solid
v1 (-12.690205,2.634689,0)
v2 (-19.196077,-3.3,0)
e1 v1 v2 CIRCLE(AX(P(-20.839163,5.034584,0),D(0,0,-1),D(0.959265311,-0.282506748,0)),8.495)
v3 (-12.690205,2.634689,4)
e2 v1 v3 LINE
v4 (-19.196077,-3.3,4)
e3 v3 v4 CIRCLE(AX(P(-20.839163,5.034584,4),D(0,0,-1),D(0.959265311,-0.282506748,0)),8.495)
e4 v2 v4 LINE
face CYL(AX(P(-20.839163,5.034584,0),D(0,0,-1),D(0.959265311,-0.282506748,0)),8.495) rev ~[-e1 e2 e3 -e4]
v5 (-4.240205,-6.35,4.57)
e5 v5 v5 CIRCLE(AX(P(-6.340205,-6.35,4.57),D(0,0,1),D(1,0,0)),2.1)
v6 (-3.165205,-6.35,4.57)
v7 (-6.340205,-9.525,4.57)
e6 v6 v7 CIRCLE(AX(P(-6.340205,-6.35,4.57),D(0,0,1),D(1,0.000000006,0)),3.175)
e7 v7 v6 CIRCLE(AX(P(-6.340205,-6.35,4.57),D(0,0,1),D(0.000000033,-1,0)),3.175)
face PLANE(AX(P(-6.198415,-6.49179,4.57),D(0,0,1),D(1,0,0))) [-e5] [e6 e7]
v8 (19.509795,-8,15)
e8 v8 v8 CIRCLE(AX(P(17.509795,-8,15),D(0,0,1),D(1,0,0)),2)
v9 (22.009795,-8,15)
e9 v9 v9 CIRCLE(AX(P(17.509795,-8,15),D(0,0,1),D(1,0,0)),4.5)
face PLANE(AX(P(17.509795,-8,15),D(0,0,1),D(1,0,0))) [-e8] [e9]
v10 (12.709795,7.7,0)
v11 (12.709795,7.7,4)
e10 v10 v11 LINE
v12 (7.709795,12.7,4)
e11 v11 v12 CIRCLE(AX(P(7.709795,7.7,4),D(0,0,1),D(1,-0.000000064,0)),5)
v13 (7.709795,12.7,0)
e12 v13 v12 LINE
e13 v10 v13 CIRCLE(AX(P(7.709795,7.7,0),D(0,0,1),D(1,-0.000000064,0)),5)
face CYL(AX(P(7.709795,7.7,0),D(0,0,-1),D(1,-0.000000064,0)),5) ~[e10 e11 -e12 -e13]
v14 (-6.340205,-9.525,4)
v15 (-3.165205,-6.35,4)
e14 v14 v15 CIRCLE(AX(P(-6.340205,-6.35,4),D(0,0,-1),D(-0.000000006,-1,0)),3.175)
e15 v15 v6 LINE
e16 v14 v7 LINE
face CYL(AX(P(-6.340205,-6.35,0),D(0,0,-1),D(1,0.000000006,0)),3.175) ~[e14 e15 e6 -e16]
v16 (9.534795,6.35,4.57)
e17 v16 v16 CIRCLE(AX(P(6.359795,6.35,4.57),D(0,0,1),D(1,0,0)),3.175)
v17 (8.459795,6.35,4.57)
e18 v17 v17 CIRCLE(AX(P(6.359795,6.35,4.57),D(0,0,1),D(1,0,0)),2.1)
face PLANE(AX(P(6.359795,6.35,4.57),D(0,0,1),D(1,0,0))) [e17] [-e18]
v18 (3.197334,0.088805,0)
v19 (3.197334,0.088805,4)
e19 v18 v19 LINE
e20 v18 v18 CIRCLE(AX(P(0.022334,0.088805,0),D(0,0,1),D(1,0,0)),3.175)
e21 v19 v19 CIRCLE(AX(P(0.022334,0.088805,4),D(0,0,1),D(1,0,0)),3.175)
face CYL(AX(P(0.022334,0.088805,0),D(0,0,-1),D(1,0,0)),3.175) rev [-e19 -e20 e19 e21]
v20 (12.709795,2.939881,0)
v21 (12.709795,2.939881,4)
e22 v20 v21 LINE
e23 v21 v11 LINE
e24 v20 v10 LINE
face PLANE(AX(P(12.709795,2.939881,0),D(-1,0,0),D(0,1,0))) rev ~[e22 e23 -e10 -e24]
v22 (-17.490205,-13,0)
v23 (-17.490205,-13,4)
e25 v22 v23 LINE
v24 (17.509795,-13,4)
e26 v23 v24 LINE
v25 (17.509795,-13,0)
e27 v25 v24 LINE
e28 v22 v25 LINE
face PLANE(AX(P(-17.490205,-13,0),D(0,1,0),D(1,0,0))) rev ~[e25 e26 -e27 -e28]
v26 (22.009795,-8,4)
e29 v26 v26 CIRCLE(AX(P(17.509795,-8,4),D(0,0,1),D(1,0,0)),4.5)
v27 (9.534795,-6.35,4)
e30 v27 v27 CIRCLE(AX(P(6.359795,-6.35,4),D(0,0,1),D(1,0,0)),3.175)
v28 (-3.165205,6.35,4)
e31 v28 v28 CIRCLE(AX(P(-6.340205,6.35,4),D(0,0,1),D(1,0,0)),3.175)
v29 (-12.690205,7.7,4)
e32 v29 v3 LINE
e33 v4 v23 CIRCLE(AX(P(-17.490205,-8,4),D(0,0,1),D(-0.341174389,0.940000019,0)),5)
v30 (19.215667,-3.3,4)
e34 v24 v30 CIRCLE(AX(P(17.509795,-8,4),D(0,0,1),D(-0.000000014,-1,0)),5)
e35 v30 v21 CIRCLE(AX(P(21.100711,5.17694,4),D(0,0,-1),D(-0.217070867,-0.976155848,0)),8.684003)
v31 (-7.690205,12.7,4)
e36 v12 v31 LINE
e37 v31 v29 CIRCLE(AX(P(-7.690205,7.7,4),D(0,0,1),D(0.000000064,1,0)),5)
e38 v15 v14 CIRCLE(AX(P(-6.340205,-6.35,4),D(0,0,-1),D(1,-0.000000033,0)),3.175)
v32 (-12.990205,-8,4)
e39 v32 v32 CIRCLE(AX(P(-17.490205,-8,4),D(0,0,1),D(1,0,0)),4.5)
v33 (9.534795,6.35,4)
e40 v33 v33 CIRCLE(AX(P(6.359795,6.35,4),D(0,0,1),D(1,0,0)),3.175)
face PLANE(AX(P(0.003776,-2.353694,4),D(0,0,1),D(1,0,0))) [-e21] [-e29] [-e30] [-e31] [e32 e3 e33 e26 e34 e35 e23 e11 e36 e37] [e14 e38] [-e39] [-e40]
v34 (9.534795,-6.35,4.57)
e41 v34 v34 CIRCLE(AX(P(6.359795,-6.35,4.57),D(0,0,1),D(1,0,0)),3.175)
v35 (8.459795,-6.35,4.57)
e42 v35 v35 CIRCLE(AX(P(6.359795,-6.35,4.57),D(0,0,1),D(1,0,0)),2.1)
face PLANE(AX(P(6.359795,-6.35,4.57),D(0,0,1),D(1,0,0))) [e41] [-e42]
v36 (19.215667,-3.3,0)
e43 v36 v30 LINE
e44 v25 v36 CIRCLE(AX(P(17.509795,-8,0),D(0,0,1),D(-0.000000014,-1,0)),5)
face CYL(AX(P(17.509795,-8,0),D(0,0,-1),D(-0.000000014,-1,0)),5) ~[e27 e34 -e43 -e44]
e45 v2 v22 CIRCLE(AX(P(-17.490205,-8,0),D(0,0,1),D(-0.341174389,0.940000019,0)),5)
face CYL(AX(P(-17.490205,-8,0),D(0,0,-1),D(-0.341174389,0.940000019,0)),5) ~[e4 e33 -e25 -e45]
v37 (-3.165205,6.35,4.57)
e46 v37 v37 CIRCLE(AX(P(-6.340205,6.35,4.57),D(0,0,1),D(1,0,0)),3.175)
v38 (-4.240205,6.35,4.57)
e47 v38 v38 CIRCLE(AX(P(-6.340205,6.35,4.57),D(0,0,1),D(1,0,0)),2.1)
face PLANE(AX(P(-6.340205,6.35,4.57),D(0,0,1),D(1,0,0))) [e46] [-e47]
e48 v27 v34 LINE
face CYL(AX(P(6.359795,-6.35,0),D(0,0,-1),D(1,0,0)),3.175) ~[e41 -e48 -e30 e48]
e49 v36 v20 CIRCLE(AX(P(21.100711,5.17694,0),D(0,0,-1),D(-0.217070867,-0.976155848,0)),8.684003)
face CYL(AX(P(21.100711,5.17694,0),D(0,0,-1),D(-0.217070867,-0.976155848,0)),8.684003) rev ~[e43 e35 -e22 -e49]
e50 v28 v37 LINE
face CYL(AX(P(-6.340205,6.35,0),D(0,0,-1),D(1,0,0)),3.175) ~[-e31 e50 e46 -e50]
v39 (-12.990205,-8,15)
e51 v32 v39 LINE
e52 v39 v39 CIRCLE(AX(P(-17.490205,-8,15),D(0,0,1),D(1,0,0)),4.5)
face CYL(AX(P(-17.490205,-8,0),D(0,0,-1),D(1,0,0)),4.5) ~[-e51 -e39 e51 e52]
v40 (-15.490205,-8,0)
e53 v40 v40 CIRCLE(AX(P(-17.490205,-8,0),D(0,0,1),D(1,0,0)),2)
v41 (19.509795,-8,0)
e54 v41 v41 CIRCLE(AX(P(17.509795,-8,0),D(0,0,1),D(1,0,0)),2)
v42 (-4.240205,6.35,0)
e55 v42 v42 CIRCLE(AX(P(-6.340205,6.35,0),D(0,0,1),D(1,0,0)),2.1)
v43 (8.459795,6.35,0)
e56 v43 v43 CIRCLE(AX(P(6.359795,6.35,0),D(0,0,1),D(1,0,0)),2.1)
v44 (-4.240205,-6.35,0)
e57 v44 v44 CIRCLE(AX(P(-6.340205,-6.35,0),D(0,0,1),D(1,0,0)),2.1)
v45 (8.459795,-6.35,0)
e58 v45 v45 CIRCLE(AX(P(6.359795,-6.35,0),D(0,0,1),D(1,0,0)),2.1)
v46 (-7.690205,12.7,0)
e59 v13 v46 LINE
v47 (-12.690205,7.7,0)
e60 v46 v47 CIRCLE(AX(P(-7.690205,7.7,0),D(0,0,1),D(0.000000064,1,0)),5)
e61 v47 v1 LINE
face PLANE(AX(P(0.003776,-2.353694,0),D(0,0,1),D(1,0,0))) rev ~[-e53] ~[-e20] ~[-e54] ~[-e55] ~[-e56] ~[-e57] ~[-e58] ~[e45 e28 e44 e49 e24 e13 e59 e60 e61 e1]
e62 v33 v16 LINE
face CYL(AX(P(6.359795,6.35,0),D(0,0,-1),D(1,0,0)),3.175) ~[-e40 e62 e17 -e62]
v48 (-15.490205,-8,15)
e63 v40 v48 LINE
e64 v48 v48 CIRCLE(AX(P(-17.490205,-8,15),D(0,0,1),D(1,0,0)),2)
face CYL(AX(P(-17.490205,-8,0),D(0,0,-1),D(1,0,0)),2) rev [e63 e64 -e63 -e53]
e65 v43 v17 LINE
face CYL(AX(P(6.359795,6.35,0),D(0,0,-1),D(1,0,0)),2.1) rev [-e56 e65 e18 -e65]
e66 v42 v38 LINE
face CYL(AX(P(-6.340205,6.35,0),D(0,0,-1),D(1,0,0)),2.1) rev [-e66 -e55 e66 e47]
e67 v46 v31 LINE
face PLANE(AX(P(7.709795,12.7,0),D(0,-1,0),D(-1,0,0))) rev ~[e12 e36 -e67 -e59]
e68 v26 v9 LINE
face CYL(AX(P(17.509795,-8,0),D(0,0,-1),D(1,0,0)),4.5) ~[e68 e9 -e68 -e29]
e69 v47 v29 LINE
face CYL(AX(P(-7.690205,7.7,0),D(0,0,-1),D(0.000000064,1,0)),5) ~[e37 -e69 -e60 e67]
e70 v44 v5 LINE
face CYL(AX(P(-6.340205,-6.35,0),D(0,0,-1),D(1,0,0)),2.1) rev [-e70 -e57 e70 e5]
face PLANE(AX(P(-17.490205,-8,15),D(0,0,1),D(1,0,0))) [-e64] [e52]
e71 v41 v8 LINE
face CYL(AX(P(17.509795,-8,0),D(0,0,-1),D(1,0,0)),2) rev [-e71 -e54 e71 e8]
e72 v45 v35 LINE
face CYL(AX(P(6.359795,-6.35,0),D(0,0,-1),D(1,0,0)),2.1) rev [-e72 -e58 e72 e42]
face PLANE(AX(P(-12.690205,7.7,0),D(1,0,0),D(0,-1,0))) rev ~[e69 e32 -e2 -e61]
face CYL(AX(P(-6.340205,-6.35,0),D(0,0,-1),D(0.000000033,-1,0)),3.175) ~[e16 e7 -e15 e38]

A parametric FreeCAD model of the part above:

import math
import FreeCAD as App
import Part
import Sketcher

V = App.Vector
Q = App.Units.Quantity

doc = App.newDocument("Part")
body = doc.addObject("PartDesign::Body", "Body")

sketch1 = body.newObject("Sketcher::SketchObject", "Sketch")
sketch1.AttachmentSupport = (doc.getObject("XY_Plane"), [""])
sketch1.MapMode = "FlatFace"
sketch1.addGeometry([
    Part.LineSegment(V(7.7, 12.7, 0), V(-7.7, 12.7, 0)),
    Part.ArcOfCircle(Part.Circle(V(-7.7, 7.7, 0), V(0, 0, 1), 5), math.radians(90), math.radians(180)),
    Part.LineSegment(V(-12.7, 7.7, 0), V(-12.7, 2.6, 0)),
    Part.ArcOfCircle(Part.Circle(V(-20.8, 5, 0), V(0, 0, 1), 8.5), math.radians(-79), math.radians(-16)),
    Part.ArcOfCircle(Part.Circle(V(-17.5, -8, 0), V(0, 0, 1), 5), math.radians(110), math.radians(270)),
    Part.LineSegment(V(-17.5, -13, 0), V(17.5, -13, 0)),
    Part.ArcOfCircle(Part.Circle(V(17.5, -8, 0), V(0, 0, 1), 5), math.radians(-90), math.radians(70)),
    Part.ArcOfCircle(Part.Circle(V(21.1, 5.2, 0), V(0, 0, 1), 8.7), math.radians(-165), math.radians(-103)),
    Part.LineSegment(V(12.7, 2.9, 0), V(12.7, 7.7, 0)),
    Part.ArcOfCircle(Part.Circle(V(7.7, 7.7, 0), V(0, 0, 1), 5), math.radians(0), math.radians(90)),
    Part.Circle(V(-17.5, -8, 0), V(0, 0, 1), 4.5),
    Part.ArcOfCircle(Part.Circle(V(-6.3, -6.3, 0), V(0, 0, 1), 3.2), math.radians(-90), math.radians(0)),
    Part.ArcOfCircle(Part.Circle(V(-6.3, -6.4, 0), V(0, 0, 1), 3.2), math.radians(0), math.radians(270)),
    Part.Circle(V(17.5, -8, 0), V(0, 0, 1), 4.5),
    Part.Circle(V(6.4, -6.3, 0), V(0, 0, 1), 3.2),
    Part.Circle(V(-6.3, 6.3, 0), V(0, 0, 1), 3.2),
    Part.Circle(V(0, 0.1, 0), V(0, 0, 1), 3.2),
    Part.Circle(V(6.4, 6.3, 0), V(0, 0, 1), 3.2),
], False)
sketch1.addConstraint([
    Sketcher.Constraint("Tangent", 0, 2, 1, 1),
    Sketcher.Constraint("Tangent", 1, 2, 2, 1),
    Sketcher.Constraint("Coincident", 2, 2, 3, 2),
    Sketcher.Constraint("Coincident", 3, 1, 4, 1),
    Sketcher.Constraint("Tangent", 4, 2, 5, 1),
    Sketcher.Constraint("Tangent", 5, 2, 6, 1),
    Sketcher.Constraint("Coincident", 6, 2, 7, 2),
    Sketcher.Constraint("Coincident", 7, 1, 8, 1),
    Sketcher.Constraint("Tangent", 8, 2, 9, 1),
    Sketcher.Constraint("Tangent", 9, 2, 0, 1),
    Sketcher.Constraint("Tangent", 11, 1, 12, 2),
    Sketcher.Constraint("Coincident", 12, 1, 11, 2),
    Sketcher.Constraint("Horizontal", 0),
    Sketcher.Constraint("Vertical", 2),
    Sketcher.Constraint("Horizontal", 5),
    Sketcher.Constraint("Vertical", 8),
    Sketcher.Constraint("Coincident", 10, 3, 4, 3),
    Sketcher.Constraint("Coincident", 13, 3, 6, 3),
    Sketcher.Constraint("Equal", 1, 4),
    Sketcher.Constraint("Equal", 4, 6),
    Sketcher.Constraint("Equal", 6, 9),
    Sketcher.Constraint("Equal", 10, 13),
    Sketcher.Constraint("Equal", 12, 14),
    Sketcher.Constraint("Equal", 14, 15),
    Sketcher.Constraint("Equal", 15, 16),
    Sketcher.Constraint("Equal", 16, 17),
    Sketcher.Constraint("Symmetric", 11, 3, 15, 3, -1),
    Sketcher.Constraint("Symmetric", 14, 3, 17, 3, -1),
    Sketcher.Constraint("Horizontal", 12, 3, 14, 3),
    Sketcher.Constraint("Horizontal", 3, 1, 6, 2),
    Sketcher.Constraint("Horizontal", 14, 3, 12, 1),
    Sketcher.Constraint("Vertical", 15, 3, 11, 1),
    Sketcher.Constraint("Diameter", 10, Q("9 mm")),
    Sketcher.Constraint("Radius", 1, Q("5 mm")),
    Sketcher.Constraint("Diameter", 14, Q("6.35 mm")),
    Sketcher.Constraint("DistanceX", 5, 1, 5, 2, Q("35 mm")),
    Sketcher.Constraint("DistanceX", 0, 2, 0, 1, Q("15.4 mm")),
    Sketcher.Constraint("DistanceY", 4, 3, -1, 1, Q("8 mm")),
    Sketcher.Constraint("Radius", 3, Q("8.495 mm")),
    Sketcher.Constraint("DistanceY", 3, 1, 1, 2, Q("11 mm")),
    Sketcher.Constraint("DistanceY", -1, 1, 1, 3, Q("7.7 mm")),
    Sketcher.Constraint("DistanceX", 4, 3, 1, 3, Q("9.8 mm")),
    Sketcher.Constraint("DistanceX", 12, 3, 14, 3, Q("12.7 mm")),
    Sketcher.Constraint("DistanceY", 11, 3, 15, 3, Q("12.7 mm")),
    Sketcher.Constraint("DistanceX", 10, 3, 11, 3, Q("11.15 mm")),
    Sketcher.Constraint("Radius", 7, Q("8.684003 mm")),
    Sketcher.Constraint("DistanceY", 2, 2, 2, 1, Q("5.065311 mm")),
    Sketcher.Constraint("DistanceY", 8, 1, 8, 2, Q("4.760119 mm")),
    Sketcher.Constraint("DistanceX", -1, 1, 7, 3, Q("21.100711 mm")),
    Sketcher.Constraint("DistanceX", 15, 3, 16, 3, Q("6.362539 mm")),
    Sketcher.Constraint("DistanceY", -1, 1, 16, 3, Q("0.088805 mm")),
])
pad1 = body.newObject("PartDesign::Pad", "Pad")
pad1.Profile = sketch1
pad1.Length = 4

sketch2 = body.newObject("Sketcher::SketchObject", "Sketch001")
sketch2.AttachmentSupport = (doc.getObject("XY_Plane"), [""])
sketch2.MapMode = "FlatFace"
sketch2.addGeometry([
    Part.Circle(V(-6.3, 6.3, 0), V(0, 0, 1), 3.2),
    Part.Circle(V(-6.3, 6.3, 0), V(0, 0, 1), 2.1),
], False)
sketch2.addConstraint([
    Sketcher.Constraint("Coincident", 1, 3, 0, 3),
    Sketcher.Constraint("Diameter", 1, Q("4.2 mm")),
    Sketcher.Constraint("Diameter", 0, Q("6.35 mm")),
    Sketcher.Constraint("DistanceY", -1, 1, 0, 3, Q("6.35 mm")),
    Sketcher.Constraint("DistanceX", 0, 3, -1, 1, Q("6.340205 mm")),
])
pad2 = body.newObject("PartDesign::Pad", "Pad001")
pad2.Profile = sketch2
pad2.Length = 4.57

sketch3 = body.newObject("Sketcher::SketchObject", "Sketch002")
sketch3.AttachmentSupport = (doc.getObject("XY_Plane"), [""])
sketch3.MapMode = "FlatFace"
sketch3.addGeometry([
    Part.Circle(V(6.4, 6.3, 0), V(0, 0, 1), 3.2),
    Part.Circle(V(6.4, 6.3, 0), V(0, 0, 1), 2.1),
], False)
sketch3.addConstraint([
    Sketcher.Constraint("Coincident", 1, 3, 0, 3),
    Sketcher.Constraint("Diameter", 1, Q("4.2 mm")),
    Sketcher.Constraint("Diameter", 0, Q("6.35 mm")),
    Sketcher.Constraint("DistanceY", -1, 1, 0, 3, Q("6.35 mm")),
    Sketcher.Constraint("DistanceX", -1, 1, 0, 3, Q("6.359795 mm")),
])
pad3 = body.newObject("PartDesign::Pad", "Pad002")
pad3.Profile = sketch3
pad3.Length = 4.57

sketch4 = body.newObject("Sketcher::SketchObject", "Sketch003")
sketch4.AttachmentSupport = (doc.getObject("XY_Plane"), [""])
sketch4.MapMode = "FlatFace"
sketch4.addGeometry([
    Part.Circle(V(6.4, -6.3, 0), V(0, 0, 1), 3.2),
    Part.Circle(V(6.4, -6.3, 0), V(0, 0, 1), 2.1),
], False)
sketch4.addConstraint([
    Sketcher.Constraint("Coincident", 1, 3, 0, 3),
    Sketcher.Constraint("Diameter", 1, Q("4.2 mm")),
    Sketcher.Constraint("Diameter", 0, Q("6.35 mm")),
    Sketcher.Constraint("DistanceY", 0, 3, -1, 1, Q("6.35 mm")),
    Sketcher.Constraint("DistanceX", -1, 1, 0, 3, Q("6.359795 mm")),
])
pad4 = body.newObject("PartDesign::Pad", "Pad003")
pad4.Profile = sketch4
pad4.Length = 4.57

sketch5 = body.newObject("Sketcher::SketchObject", "Sketch004")
sketch5.AttachmentSupport = (doc.getObject("XY_Plane"), [""])
sketch5.MapMode = "FlatFace"
sketch5.addGeometry([
    Part.ArcOfCircle(Part.Circle(V(-6.3, -6.3, 0), V(0, 0, 1), 3.2), math.radians(-90), math.radians(0)),
    Part.ArcOfCircle(Part.Circle(V(-6.3, -6.4, 0), V(0, 0, 1), 3.2), math.radians(0), math.radians(270)),
    Part.Circle(V(-6.3, -6.3, 0), V(0, 0, 1), 2.1),
], False)
sketch5.addConstraint([
    Sketcher.Constraint("Tangent", 0, 1, 1, 2),
    Sketcher.Constraint("Coincident", 1, 1, 0, 2),
    Sketcher.Constraint("Coincident", 2, 3, 0, 3),
    Sketcher.Constraint("Horizontal", 2, 3, 1, 1),
    Sketcher.Constraint("Vertical", 2, 3, 0, 1),
    Sketcher.Constraint("Diameter", 2, Q("4.2 mm")),
    Sketcher.Constraint("Radius", 0, Q("3.175 mm")),
    Sketcher.Constraint("DistanceY", 0, 3, -1, 1, Q("6.35 mm")),
    Sketcher.Constraint("DistanceX", 0, 3, -1, 1, Q("6.340205 mm")),
])
pad5 = body.newObject("PartDesign::Pad", "Pad004")
pad5.Profile = sketch5
pad5.Length = 4.57

sketch6 = body.newObject("Sketcher::SketchObject", "Sketch005")
sketch6.AttachmentSupport = (doc.getObject("XY_Plane"), [""])
sketch6.MapMode = "FlatFace"
sketch6.addGeometry([
    Part.Circle(V(-17.5, -8, 0), V(0, 0, 1), 4.5),
    Part.Circle(V(-17.5, -8, 0), V(0, 0, 1), 2),
], False)
sketch6.addConstraint([
    Sketcher.Constraint("Coincident", 1, 3, 0, 3),
    Sketcher.Constraint("Diameter", 0, Q("9 mm")),
    Sketcher.Constraint("Diameter", 1, Q("4 mm")),
    Sketcher.Constraint("DistanceY", 0, 3, -1, 1, Q("8 mm")),
    Sketcher.Constraint("DistanceX", 0, 3, -1, 1, Q("17.490205 mm")),
])
pad6 = body.newObject("PartDesign::Pad", "Pad005")
pad6.Profile = sketch6
pad6.Length = 15

sketch7 = body.newObject("Sketcher::SketchObject", "Sketch006")
sketch7.AttachmentSupport = (doc.getObject("XY_Plane"), [""])
sketch7.MapMode = "FlatFace"
sketch7.addGeometry([
    Part.Circle(V(17.5, -8, 0), V(0, 0, 1), 4.5),
    Part.Circle(V(17.5, -8, 0), V(0, 0, 1), 2),
], False)
sketch7.addConstraint([
    Sketcher.Constraint("Coincident", 1, 3, 0, 3),
    Sketcher.Constraint("Diameter", 0, Q("9 mm")),
    Sketcher.Constraint("Diameter", 1, Q("4 mm")),
    Sketcher.Constraint("DistanceY", 0, 3, -1, 1, Q("8 mm")),
    Sketcher.Constraint("DistanceX", -1, 1, 0, 3, Q("17.509795 mm")),
])
pad7 = body.newObject("PartDesign::Pad", "Pad006")
pad7.Profile = sketch7
pad7.Length = 15

doc.recompute()
